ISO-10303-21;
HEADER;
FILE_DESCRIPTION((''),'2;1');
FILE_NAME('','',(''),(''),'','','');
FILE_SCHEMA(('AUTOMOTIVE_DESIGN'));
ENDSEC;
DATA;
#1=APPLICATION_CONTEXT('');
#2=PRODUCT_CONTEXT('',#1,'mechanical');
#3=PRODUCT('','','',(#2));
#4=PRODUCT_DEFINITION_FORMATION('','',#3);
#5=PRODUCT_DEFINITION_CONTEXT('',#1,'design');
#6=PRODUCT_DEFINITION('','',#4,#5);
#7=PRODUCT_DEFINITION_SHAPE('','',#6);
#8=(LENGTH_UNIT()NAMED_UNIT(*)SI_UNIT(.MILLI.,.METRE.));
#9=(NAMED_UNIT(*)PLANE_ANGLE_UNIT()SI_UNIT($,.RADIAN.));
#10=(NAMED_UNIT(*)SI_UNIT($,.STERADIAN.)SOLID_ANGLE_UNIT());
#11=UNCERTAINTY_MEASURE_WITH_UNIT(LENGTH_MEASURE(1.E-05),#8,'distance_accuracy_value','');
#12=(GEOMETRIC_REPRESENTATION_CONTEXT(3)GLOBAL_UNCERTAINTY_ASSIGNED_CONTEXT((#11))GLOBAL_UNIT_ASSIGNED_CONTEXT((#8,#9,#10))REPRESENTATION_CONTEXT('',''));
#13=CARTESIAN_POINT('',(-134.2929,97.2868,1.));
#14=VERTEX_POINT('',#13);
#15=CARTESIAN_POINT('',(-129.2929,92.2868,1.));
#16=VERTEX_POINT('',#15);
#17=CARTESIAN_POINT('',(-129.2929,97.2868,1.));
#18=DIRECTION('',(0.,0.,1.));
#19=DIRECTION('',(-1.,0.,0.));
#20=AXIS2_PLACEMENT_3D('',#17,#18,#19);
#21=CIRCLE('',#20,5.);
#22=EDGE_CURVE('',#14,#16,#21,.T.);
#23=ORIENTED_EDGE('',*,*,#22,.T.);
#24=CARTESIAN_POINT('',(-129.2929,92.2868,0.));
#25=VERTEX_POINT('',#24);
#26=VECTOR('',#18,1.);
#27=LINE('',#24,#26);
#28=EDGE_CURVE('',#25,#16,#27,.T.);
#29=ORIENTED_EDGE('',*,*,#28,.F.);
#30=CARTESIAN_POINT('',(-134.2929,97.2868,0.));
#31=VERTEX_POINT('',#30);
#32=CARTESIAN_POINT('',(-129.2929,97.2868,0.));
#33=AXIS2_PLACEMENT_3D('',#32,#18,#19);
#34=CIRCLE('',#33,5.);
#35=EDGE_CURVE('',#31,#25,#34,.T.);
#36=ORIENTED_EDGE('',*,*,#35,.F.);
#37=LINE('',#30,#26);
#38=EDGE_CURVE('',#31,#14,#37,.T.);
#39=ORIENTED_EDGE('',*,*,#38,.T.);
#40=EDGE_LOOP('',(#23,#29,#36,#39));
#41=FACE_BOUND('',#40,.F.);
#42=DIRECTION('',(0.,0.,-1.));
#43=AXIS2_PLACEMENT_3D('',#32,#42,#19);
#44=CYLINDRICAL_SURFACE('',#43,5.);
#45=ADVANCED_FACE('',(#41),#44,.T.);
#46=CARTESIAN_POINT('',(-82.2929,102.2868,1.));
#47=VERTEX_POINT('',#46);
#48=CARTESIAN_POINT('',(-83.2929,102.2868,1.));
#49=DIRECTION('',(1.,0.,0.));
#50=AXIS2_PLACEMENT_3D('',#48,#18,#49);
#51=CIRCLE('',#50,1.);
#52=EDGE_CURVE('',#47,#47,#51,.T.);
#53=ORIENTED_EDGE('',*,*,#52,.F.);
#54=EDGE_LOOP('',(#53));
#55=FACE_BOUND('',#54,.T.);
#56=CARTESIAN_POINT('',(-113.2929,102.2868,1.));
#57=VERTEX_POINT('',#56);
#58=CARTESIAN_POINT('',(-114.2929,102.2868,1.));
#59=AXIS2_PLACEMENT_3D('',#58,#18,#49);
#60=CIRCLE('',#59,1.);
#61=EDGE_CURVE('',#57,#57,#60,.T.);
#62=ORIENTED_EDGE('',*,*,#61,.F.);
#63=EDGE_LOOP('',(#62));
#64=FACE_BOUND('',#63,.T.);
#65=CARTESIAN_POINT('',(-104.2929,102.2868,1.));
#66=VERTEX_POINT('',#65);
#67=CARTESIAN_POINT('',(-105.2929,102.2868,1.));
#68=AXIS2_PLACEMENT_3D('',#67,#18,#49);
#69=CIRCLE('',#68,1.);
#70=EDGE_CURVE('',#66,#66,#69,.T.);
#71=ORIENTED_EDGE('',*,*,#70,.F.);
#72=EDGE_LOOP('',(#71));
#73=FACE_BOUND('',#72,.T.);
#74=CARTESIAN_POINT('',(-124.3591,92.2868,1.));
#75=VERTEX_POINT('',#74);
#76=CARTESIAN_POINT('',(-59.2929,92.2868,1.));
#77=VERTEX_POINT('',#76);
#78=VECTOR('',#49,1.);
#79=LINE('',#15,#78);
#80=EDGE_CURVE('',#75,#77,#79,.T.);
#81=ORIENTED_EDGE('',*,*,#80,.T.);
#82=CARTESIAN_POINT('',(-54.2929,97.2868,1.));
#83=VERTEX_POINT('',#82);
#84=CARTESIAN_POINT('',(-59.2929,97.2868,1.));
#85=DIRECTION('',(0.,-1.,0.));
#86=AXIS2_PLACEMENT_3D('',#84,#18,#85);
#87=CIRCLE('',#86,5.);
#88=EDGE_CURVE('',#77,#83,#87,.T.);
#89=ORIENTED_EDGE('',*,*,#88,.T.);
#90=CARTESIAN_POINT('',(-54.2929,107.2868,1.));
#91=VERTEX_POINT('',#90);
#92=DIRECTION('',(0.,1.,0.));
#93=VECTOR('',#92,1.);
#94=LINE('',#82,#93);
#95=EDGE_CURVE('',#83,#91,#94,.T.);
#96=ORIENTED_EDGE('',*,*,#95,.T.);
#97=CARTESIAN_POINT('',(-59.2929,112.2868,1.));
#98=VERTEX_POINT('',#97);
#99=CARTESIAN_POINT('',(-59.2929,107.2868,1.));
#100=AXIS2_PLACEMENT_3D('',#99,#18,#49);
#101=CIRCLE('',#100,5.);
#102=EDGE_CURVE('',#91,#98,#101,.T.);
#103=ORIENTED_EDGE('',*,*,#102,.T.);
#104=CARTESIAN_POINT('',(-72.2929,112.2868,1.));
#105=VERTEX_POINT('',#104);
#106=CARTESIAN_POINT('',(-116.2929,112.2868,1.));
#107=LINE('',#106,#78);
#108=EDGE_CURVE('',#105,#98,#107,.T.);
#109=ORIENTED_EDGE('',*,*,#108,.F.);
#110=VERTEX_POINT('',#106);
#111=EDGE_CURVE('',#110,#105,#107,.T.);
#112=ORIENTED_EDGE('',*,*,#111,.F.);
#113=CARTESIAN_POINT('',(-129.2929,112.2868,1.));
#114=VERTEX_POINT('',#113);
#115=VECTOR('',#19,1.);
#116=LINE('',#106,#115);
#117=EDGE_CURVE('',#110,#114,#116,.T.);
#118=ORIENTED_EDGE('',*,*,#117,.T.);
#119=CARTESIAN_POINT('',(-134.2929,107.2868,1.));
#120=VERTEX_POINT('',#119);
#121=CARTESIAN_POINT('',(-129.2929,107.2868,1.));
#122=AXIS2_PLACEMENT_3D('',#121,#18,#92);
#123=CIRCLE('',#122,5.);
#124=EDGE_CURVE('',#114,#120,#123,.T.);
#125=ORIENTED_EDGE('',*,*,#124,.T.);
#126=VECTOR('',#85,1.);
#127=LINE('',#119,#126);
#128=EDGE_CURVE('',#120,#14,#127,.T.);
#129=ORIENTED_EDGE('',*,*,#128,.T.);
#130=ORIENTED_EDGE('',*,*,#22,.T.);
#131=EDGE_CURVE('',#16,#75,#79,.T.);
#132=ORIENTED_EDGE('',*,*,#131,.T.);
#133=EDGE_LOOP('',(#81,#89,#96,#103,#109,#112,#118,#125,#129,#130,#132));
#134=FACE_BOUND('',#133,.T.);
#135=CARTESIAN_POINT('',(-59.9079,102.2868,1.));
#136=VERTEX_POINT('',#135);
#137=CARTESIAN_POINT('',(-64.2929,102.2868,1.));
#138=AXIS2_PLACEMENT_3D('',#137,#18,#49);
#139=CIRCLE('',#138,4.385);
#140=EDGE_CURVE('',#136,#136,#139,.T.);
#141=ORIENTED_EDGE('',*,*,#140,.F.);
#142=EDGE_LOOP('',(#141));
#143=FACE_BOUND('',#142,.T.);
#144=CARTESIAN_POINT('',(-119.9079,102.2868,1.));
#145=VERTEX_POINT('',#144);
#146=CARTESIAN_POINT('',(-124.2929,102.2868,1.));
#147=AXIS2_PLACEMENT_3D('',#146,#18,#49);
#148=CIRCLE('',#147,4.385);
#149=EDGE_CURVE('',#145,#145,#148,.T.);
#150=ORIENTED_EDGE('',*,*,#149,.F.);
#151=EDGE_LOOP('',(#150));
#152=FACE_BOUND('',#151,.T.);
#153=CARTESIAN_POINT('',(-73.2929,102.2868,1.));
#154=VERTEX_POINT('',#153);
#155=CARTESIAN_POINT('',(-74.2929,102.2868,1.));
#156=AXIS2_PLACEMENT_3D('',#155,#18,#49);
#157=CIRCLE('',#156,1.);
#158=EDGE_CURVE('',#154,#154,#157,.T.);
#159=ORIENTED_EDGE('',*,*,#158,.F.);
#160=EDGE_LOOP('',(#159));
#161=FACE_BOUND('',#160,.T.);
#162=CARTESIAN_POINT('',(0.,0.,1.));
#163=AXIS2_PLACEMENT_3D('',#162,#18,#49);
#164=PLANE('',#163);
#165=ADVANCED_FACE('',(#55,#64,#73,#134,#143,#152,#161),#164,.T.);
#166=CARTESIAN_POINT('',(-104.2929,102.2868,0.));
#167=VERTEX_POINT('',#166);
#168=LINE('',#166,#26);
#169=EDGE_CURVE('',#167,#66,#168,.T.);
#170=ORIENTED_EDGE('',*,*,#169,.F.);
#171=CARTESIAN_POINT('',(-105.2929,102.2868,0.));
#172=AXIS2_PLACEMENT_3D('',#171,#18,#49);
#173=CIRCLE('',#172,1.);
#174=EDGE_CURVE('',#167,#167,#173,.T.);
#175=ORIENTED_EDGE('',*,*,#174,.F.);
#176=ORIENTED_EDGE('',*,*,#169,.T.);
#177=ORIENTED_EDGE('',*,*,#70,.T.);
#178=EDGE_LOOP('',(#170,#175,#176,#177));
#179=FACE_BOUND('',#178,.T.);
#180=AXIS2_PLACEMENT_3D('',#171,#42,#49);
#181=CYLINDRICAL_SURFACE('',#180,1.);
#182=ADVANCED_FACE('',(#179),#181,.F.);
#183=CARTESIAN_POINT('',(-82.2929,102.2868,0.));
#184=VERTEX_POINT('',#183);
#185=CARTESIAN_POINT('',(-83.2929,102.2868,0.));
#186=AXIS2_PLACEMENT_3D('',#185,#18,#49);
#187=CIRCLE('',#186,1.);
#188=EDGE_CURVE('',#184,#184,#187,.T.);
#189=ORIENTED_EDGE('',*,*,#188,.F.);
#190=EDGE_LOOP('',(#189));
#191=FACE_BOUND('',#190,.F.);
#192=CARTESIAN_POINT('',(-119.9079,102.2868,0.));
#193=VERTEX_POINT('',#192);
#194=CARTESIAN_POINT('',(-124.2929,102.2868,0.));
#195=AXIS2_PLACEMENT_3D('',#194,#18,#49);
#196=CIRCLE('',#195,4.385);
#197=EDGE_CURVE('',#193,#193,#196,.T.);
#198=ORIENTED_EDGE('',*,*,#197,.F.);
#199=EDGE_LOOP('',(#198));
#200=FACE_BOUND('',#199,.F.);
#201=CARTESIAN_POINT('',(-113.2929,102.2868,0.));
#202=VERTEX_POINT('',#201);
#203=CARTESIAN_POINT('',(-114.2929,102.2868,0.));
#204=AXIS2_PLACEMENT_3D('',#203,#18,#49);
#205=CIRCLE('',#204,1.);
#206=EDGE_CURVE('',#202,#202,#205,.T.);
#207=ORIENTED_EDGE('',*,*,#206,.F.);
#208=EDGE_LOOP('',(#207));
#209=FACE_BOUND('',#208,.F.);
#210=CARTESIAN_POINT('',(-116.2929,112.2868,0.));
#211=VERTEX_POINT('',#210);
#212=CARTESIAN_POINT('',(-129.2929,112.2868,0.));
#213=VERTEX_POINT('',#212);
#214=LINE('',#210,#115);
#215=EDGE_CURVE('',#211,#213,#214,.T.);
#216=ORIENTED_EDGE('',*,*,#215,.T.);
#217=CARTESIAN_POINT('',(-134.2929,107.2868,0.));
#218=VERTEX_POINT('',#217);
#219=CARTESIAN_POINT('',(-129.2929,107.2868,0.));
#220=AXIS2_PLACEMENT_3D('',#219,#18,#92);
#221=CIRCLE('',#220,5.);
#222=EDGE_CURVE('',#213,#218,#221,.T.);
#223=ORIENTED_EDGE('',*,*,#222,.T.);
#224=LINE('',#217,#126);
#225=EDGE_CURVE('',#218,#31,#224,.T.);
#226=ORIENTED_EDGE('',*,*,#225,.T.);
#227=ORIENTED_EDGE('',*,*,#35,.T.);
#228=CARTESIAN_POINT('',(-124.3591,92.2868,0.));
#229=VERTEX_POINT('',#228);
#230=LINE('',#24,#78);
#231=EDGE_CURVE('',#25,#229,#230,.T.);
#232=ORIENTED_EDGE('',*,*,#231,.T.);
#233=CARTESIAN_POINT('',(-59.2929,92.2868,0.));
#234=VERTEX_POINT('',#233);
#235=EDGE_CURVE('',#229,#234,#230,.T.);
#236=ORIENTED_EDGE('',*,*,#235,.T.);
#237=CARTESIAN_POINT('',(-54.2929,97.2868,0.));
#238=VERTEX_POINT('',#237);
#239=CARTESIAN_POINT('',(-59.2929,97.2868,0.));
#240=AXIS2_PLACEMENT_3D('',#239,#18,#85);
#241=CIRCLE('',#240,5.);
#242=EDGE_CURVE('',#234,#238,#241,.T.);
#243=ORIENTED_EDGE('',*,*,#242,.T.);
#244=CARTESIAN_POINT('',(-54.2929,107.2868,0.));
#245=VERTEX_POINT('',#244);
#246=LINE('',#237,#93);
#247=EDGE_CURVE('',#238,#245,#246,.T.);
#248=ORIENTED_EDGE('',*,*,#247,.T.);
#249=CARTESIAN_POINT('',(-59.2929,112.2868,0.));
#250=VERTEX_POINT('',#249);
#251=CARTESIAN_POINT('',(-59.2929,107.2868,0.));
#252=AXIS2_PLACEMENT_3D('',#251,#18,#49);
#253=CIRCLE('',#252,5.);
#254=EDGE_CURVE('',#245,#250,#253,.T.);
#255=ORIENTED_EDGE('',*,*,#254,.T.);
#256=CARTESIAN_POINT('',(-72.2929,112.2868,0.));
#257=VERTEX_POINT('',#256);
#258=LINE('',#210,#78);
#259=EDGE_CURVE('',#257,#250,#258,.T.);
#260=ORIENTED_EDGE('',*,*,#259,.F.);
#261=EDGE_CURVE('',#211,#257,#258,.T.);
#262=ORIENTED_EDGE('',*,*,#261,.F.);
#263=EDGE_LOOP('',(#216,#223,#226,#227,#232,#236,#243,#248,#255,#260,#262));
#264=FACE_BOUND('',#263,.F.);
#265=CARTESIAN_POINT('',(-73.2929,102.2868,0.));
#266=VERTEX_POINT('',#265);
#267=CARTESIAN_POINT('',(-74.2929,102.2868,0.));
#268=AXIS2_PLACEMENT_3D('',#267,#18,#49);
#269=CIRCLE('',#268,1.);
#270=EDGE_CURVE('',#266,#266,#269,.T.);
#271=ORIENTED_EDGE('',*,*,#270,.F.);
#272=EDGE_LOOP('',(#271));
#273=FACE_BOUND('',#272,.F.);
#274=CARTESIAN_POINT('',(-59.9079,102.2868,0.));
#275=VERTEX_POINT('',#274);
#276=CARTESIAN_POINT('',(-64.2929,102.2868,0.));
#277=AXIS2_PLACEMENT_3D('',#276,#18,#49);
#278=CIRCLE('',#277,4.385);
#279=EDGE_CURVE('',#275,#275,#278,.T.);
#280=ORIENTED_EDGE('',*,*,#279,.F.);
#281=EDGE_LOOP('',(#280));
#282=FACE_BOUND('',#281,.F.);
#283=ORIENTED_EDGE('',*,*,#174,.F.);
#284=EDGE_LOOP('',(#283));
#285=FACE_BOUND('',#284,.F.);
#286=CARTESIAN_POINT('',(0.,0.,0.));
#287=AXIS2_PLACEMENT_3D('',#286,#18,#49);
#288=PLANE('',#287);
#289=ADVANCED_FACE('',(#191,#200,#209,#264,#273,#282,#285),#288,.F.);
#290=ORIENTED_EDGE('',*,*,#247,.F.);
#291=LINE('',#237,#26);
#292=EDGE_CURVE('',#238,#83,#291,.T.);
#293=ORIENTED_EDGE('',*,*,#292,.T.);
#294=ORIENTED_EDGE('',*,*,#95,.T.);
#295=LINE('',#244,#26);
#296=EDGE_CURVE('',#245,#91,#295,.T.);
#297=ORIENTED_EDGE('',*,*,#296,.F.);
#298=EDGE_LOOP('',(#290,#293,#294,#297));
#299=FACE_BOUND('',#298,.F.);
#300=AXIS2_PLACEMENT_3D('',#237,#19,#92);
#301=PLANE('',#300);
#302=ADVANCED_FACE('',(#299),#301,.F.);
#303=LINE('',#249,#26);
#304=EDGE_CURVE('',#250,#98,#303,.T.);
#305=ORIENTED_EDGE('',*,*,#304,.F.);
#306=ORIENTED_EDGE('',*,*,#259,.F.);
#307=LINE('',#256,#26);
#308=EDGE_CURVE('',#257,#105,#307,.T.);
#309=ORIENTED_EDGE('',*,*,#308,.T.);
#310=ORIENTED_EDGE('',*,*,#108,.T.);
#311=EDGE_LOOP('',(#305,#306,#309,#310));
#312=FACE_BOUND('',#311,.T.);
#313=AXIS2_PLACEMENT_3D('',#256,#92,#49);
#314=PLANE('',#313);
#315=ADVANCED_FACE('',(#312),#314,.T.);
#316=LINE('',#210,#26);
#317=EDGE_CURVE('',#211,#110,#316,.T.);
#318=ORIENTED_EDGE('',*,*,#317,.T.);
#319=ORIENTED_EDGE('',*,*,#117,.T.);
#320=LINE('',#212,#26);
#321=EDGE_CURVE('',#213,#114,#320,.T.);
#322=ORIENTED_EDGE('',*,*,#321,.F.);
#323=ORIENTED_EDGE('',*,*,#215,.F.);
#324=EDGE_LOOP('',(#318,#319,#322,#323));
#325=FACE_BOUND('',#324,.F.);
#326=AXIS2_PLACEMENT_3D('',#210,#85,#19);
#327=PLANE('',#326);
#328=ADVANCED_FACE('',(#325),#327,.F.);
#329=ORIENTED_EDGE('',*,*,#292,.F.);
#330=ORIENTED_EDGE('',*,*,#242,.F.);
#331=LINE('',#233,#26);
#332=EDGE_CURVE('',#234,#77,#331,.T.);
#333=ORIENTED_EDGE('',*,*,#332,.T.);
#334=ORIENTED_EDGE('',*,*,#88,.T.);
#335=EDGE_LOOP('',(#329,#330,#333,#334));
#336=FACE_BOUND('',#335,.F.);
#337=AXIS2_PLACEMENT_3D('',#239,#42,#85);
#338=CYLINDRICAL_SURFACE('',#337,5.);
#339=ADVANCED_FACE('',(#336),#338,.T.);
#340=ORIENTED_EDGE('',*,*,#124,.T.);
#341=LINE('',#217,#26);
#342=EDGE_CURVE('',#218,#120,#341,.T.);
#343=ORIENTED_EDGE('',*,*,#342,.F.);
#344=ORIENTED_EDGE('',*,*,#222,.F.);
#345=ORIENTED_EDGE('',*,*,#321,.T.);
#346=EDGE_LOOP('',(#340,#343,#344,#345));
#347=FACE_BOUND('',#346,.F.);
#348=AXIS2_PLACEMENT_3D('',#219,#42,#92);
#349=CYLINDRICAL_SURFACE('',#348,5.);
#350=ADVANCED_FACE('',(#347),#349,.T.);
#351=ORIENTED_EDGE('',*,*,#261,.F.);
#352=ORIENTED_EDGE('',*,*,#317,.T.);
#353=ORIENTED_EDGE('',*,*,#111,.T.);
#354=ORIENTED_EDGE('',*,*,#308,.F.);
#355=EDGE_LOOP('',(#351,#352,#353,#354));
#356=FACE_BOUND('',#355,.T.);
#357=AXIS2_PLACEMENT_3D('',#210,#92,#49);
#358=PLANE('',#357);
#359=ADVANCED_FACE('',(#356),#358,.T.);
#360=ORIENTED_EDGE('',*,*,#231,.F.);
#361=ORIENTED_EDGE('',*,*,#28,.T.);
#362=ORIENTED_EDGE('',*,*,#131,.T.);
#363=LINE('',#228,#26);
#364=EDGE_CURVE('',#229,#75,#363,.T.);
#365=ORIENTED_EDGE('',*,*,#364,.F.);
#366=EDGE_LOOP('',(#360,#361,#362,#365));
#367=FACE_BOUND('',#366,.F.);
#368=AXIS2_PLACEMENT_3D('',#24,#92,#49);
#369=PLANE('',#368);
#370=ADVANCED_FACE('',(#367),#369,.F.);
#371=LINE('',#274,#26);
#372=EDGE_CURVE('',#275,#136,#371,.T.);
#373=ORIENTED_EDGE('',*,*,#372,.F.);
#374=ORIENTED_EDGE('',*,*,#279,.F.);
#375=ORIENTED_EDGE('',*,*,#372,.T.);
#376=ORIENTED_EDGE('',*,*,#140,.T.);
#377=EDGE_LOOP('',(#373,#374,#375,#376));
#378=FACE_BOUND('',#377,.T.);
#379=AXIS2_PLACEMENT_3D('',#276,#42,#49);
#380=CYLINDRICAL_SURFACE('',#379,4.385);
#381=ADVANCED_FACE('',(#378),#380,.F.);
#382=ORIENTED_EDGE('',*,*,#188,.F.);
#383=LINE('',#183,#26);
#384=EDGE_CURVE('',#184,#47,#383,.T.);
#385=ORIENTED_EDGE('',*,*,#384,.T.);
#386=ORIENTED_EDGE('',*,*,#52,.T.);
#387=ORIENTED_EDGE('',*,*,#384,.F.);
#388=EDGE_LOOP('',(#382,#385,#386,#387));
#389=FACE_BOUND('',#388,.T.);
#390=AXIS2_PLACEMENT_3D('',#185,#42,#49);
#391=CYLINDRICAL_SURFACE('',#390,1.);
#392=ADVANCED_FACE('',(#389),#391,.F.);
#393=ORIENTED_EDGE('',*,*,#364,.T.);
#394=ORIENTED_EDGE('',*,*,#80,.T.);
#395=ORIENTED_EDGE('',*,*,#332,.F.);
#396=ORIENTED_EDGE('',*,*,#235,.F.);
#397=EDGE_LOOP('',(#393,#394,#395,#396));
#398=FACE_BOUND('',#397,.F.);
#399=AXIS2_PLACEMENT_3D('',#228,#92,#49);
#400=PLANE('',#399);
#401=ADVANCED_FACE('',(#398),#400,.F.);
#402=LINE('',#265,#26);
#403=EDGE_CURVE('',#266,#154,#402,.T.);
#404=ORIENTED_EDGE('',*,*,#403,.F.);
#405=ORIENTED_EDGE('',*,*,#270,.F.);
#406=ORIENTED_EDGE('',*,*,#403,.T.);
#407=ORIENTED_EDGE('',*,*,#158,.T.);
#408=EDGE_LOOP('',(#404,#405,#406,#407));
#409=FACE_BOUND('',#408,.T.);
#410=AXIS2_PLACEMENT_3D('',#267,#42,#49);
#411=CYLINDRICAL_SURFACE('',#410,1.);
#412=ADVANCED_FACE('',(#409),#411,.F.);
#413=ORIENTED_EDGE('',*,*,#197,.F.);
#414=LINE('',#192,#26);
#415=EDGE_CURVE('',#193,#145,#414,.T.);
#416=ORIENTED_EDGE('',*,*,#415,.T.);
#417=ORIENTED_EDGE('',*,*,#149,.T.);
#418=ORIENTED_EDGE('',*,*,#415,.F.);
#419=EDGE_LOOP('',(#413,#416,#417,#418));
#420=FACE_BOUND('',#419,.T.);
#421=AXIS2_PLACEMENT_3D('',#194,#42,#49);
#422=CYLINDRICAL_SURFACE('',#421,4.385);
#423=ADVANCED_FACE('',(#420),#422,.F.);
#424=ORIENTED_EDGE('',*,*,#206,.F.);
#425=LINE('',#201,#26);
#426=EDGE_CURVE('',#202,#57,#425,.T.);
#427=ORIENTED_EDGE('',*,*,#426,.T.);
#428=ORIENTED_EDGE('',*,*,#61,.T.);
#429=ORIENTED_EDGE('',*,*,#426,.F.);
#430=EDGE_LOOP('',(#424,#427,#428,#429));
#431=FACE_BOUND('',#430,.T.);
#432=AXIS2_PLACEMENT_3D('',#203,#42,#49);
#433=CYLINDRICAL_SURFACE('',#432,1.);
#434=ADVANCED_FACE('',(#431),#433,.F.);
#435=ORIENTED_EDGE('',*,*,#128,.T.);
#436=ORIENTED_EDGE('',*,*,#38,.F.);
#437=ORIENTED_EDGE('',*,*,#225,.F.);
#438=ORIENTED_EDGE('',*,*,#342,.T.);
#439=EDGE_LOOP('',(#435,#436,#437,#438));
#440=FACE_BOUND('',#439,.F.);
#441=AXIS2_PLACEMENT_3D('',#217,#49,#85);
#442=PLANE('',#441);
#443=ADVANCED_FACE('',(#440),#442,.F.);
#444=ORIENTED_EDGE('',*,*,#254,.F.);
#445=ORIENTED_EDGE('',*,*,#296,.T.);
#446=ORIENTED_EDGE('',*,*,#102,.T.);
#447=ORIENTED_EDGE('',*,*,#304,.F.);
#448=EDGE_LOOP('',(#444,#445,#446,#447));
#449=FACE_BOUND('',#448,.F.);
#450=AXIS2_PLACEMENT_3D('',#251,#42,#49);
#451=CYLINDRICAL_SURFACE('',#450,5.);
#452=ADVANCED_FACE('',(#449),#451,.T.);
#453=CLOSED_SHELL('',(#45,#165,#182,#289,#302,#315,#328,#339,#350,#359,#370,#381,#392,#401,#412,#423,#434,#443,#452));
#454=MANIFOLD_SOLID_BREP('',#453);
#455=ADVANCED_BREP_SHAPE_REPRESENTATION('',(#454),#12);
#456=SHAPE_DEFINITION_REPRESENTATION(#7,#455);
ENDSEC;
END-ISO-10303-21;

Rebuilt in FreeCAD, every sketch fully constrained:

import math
import FreeCAD as App
import Part
import Sketcher
from FreeCAD import Vector
Q = App.Units.Quantity

doc = App.newDocument("Part")
body = doc.addObject("PartDesign::Body", "Body")

sketch1 = body.newObject("Sketcher::SketchObject", "Sketch")
sketch1.AttachmentSupport = (doc.getObject("XY_Plane"), [""])
sketch1.MapMode = "FlatFace"
sketch1.addGeometry(Part.LineSegment(Vector(-59.3, 112.3, 0), Vector(-129.3, 112.3, 0)), False)
sketch1.addGeometry(Part.ArcOfCircle(Part.Circle(Vector(-129.3, 107.3, 0), Vector(0, 0, 1), 5), math.radians(90), math.radians(180)), False)
sketch1.addGeometry(Part.LineSegment(Vector(-134.3, 107.3, 0), Vector(-134.3, 97.3, 0)), False)
sketch1.addGeometry(Part.ArcOfCircle(Part.Circle(Vector(-129.3, 97.3, 0), Vector(0, 0, 1), 5), math.radians(180), math.radians(270)), False)
sketch1.addGeometry(Part.LineSegment(Vector(-129.3, 92.3, 0), Vector(-59.3, 92.3, 0)), False)
sketch1.addGeometry(Part.ArcOfCircle(Part.Circle(Vector(-59.3, 97.3, 0), Vector(0, 0, 1), 5), math.radians(-90), math.radians(0)), False)
sketch1.addGeometry(Part.LineSegment(Vector(-54.3, 97.3, 0), Vector(-54.3, 107.3, 0)), False)
sketch1.addGeometry(Part.ArcOfCircle(Part.Circle(Vector(-59.3, 107.3, 0), Vector(0, 0, 1), 5), math.radians(0), math.radians(90)), False)
sketch1.addGeometry(Part.Circle(Vector(-124.3, 102.3, 0), Vector(0, 0, 1), 4.4), False)
sketch1.addGeometry(Part.Circle(Vector(-114.3, 102.3, 0), Vector(0, 0, 1), 1), False)
sketch1.addGeometry(Part.Circle(Vector(-105.3, 102.3, 0), Vector(0, 0, 1), 1), False)
sketch1.addGeometry(Part.Circle(Vector(-83.3, 102.3, 0), Vector(0, 0, 1), 1), False)
sketch1.addGeometry(Part.Circle(Vector(-74.3, 102.3, 0), Vector(0, 0, 1), 1), False)
sketch1.addGeometry(Part.Circle(Vector(-64.3, 102.3, 0), Vector(0, 0, 1), 4.4), False)
sketch1.addConstraint(Sketcher.Constraint("Tangent", 0, 2, 1, 1))
sketch1.addConstraint(Sketcher.Constraint("Tangent", 1, 2, 2, 1))
sketch1.addConstraint(Sketcher.Constraint("Tangent", 2, 2, 3, 1))
sketch1.addConstraint(Sketcher.Constraint("Tangent", 3, 2, 4, 1))
sketch1.addConstraint(Sketcher.Constraint("Tangent", 4, 2, 5, 1))
sketch1.addConstraint(Sketcher.Constraint("Tangent", 5, 2, 6, 1))
sketch1.addConstraint(Sketcher.Constraint("Tangent", 6, 2, 7, 1))
sketch1.addConstraint(Sketcher.Constraint("Tangent", 7, 2, 0, 1))
sketch1.addConstraint(Sketcher.Constraint("Horizontal", 0))
sketch1.addConstraint(Sketcher.Constraint("Vertical", 2))
sketch1.addConstraint(Sketcher.Constraint("Horizontal", 4))
sketch1.addConstraint(Sketcher.Constraint("Vertical", 6))
sketch1.addConstraint(Sketcher.Constraint("Equal", 1, 3))
sketch1.addConstraint(Sketcher.Constraint("Equal", 3, 5))
sketch1.addConstraint(Sketcher.Constraint("Equal", 5, 7))
sketch1.addConstraint(Sketcher.Constraint("Equal", 9, 10))
sketch1.addConstraint(Sketcher.Constraint("Equal", 10, 11))
sketch1.addConstraint(Sketcher.Constraint("Equal", 11, 12))
sketch1.addConstraint(Sketcher.Constraint("Equal", 8, 13))
sketch1.addConstraint(Sketcher.Constraint("Horizontal", 8, 3, 9, 3))
sketch1.addConstraint(Sketcher.Constraint("Horizontal", 9, 3, 10, 3))
sketch1.addConstraint(Sketcher.Constraint("Horizontal", 10, 3, 11, 3))
sketch1.addConstraint(Sketcher.Constraint("Horizontal", 11, 3, 12, 3))
sketch1.addConstraint(Sketcher.Constraint("Horizontal", 12, 3, 13, 3))
sketch1.addConstraint(Sketcher.Constraint("Diameter", 9, Q("2 mm")))
sketch1.addConstraint(Sketcher.Constraint("Radius", 1, Q("5 mm")))
sketch1.addConstraint(Sketcher.Constraint("Diameter", 8, Q("8.77 mm")))
sketch1.addConstraint(Sketcher.Constraint("DistanceY", 2, 2, 2, 1, Q("10 mm")))
sketch1.addConstraint(Sketcher.Constraint("DistanceX", 8, 3, 9, 3, Q("10 mm")))
sketch1.addConstraint(Sketcher.Constraint("DistanceX", 9, 3, 10, 3, Q("9 mm")))
sketch1.addConstraint(Sketcher.Constraint("DistanceX", 11, 3, 12, 3, Q("9 mm")))
sketch1.addConstraint(Sketcher.Constraint("DistanceX", 12, 3, 13, 3, Q("10 mm")))
sketch1.addConstraint(Sketcher.Constraint("DistanceY", 8, 3, 0, 2, Q("10 mm")))
sketch1.addConstraint(Sketcher.Constraint("DistanceX", 1, 2, 8, 3, Q("10 mm")))
sketch1.addConstraint(Sketcher.Constraint("DistanceX", 13, 3, 5, 2, Q("10 mm")))
sketch1.addConstraint(Sketcher.Constraint("DistanceX", 0, 2, 0, 1, Q("70 mm")))
sketch1.addConstraint(Sketcher.Constraint("DistanceX", 1, 3, -1, 1, Q("129.293 mm")))
sketch1.addConstraint(Sketcher.Constraint("DistanceY", -1, 1, 1, 3, Q("107.2868 mm")))
pad1 = body.newObject("PartDesign::Pad", "Pad")
pad1.Profile = sketch1
pad1.Length = 1

doc.recompute()
